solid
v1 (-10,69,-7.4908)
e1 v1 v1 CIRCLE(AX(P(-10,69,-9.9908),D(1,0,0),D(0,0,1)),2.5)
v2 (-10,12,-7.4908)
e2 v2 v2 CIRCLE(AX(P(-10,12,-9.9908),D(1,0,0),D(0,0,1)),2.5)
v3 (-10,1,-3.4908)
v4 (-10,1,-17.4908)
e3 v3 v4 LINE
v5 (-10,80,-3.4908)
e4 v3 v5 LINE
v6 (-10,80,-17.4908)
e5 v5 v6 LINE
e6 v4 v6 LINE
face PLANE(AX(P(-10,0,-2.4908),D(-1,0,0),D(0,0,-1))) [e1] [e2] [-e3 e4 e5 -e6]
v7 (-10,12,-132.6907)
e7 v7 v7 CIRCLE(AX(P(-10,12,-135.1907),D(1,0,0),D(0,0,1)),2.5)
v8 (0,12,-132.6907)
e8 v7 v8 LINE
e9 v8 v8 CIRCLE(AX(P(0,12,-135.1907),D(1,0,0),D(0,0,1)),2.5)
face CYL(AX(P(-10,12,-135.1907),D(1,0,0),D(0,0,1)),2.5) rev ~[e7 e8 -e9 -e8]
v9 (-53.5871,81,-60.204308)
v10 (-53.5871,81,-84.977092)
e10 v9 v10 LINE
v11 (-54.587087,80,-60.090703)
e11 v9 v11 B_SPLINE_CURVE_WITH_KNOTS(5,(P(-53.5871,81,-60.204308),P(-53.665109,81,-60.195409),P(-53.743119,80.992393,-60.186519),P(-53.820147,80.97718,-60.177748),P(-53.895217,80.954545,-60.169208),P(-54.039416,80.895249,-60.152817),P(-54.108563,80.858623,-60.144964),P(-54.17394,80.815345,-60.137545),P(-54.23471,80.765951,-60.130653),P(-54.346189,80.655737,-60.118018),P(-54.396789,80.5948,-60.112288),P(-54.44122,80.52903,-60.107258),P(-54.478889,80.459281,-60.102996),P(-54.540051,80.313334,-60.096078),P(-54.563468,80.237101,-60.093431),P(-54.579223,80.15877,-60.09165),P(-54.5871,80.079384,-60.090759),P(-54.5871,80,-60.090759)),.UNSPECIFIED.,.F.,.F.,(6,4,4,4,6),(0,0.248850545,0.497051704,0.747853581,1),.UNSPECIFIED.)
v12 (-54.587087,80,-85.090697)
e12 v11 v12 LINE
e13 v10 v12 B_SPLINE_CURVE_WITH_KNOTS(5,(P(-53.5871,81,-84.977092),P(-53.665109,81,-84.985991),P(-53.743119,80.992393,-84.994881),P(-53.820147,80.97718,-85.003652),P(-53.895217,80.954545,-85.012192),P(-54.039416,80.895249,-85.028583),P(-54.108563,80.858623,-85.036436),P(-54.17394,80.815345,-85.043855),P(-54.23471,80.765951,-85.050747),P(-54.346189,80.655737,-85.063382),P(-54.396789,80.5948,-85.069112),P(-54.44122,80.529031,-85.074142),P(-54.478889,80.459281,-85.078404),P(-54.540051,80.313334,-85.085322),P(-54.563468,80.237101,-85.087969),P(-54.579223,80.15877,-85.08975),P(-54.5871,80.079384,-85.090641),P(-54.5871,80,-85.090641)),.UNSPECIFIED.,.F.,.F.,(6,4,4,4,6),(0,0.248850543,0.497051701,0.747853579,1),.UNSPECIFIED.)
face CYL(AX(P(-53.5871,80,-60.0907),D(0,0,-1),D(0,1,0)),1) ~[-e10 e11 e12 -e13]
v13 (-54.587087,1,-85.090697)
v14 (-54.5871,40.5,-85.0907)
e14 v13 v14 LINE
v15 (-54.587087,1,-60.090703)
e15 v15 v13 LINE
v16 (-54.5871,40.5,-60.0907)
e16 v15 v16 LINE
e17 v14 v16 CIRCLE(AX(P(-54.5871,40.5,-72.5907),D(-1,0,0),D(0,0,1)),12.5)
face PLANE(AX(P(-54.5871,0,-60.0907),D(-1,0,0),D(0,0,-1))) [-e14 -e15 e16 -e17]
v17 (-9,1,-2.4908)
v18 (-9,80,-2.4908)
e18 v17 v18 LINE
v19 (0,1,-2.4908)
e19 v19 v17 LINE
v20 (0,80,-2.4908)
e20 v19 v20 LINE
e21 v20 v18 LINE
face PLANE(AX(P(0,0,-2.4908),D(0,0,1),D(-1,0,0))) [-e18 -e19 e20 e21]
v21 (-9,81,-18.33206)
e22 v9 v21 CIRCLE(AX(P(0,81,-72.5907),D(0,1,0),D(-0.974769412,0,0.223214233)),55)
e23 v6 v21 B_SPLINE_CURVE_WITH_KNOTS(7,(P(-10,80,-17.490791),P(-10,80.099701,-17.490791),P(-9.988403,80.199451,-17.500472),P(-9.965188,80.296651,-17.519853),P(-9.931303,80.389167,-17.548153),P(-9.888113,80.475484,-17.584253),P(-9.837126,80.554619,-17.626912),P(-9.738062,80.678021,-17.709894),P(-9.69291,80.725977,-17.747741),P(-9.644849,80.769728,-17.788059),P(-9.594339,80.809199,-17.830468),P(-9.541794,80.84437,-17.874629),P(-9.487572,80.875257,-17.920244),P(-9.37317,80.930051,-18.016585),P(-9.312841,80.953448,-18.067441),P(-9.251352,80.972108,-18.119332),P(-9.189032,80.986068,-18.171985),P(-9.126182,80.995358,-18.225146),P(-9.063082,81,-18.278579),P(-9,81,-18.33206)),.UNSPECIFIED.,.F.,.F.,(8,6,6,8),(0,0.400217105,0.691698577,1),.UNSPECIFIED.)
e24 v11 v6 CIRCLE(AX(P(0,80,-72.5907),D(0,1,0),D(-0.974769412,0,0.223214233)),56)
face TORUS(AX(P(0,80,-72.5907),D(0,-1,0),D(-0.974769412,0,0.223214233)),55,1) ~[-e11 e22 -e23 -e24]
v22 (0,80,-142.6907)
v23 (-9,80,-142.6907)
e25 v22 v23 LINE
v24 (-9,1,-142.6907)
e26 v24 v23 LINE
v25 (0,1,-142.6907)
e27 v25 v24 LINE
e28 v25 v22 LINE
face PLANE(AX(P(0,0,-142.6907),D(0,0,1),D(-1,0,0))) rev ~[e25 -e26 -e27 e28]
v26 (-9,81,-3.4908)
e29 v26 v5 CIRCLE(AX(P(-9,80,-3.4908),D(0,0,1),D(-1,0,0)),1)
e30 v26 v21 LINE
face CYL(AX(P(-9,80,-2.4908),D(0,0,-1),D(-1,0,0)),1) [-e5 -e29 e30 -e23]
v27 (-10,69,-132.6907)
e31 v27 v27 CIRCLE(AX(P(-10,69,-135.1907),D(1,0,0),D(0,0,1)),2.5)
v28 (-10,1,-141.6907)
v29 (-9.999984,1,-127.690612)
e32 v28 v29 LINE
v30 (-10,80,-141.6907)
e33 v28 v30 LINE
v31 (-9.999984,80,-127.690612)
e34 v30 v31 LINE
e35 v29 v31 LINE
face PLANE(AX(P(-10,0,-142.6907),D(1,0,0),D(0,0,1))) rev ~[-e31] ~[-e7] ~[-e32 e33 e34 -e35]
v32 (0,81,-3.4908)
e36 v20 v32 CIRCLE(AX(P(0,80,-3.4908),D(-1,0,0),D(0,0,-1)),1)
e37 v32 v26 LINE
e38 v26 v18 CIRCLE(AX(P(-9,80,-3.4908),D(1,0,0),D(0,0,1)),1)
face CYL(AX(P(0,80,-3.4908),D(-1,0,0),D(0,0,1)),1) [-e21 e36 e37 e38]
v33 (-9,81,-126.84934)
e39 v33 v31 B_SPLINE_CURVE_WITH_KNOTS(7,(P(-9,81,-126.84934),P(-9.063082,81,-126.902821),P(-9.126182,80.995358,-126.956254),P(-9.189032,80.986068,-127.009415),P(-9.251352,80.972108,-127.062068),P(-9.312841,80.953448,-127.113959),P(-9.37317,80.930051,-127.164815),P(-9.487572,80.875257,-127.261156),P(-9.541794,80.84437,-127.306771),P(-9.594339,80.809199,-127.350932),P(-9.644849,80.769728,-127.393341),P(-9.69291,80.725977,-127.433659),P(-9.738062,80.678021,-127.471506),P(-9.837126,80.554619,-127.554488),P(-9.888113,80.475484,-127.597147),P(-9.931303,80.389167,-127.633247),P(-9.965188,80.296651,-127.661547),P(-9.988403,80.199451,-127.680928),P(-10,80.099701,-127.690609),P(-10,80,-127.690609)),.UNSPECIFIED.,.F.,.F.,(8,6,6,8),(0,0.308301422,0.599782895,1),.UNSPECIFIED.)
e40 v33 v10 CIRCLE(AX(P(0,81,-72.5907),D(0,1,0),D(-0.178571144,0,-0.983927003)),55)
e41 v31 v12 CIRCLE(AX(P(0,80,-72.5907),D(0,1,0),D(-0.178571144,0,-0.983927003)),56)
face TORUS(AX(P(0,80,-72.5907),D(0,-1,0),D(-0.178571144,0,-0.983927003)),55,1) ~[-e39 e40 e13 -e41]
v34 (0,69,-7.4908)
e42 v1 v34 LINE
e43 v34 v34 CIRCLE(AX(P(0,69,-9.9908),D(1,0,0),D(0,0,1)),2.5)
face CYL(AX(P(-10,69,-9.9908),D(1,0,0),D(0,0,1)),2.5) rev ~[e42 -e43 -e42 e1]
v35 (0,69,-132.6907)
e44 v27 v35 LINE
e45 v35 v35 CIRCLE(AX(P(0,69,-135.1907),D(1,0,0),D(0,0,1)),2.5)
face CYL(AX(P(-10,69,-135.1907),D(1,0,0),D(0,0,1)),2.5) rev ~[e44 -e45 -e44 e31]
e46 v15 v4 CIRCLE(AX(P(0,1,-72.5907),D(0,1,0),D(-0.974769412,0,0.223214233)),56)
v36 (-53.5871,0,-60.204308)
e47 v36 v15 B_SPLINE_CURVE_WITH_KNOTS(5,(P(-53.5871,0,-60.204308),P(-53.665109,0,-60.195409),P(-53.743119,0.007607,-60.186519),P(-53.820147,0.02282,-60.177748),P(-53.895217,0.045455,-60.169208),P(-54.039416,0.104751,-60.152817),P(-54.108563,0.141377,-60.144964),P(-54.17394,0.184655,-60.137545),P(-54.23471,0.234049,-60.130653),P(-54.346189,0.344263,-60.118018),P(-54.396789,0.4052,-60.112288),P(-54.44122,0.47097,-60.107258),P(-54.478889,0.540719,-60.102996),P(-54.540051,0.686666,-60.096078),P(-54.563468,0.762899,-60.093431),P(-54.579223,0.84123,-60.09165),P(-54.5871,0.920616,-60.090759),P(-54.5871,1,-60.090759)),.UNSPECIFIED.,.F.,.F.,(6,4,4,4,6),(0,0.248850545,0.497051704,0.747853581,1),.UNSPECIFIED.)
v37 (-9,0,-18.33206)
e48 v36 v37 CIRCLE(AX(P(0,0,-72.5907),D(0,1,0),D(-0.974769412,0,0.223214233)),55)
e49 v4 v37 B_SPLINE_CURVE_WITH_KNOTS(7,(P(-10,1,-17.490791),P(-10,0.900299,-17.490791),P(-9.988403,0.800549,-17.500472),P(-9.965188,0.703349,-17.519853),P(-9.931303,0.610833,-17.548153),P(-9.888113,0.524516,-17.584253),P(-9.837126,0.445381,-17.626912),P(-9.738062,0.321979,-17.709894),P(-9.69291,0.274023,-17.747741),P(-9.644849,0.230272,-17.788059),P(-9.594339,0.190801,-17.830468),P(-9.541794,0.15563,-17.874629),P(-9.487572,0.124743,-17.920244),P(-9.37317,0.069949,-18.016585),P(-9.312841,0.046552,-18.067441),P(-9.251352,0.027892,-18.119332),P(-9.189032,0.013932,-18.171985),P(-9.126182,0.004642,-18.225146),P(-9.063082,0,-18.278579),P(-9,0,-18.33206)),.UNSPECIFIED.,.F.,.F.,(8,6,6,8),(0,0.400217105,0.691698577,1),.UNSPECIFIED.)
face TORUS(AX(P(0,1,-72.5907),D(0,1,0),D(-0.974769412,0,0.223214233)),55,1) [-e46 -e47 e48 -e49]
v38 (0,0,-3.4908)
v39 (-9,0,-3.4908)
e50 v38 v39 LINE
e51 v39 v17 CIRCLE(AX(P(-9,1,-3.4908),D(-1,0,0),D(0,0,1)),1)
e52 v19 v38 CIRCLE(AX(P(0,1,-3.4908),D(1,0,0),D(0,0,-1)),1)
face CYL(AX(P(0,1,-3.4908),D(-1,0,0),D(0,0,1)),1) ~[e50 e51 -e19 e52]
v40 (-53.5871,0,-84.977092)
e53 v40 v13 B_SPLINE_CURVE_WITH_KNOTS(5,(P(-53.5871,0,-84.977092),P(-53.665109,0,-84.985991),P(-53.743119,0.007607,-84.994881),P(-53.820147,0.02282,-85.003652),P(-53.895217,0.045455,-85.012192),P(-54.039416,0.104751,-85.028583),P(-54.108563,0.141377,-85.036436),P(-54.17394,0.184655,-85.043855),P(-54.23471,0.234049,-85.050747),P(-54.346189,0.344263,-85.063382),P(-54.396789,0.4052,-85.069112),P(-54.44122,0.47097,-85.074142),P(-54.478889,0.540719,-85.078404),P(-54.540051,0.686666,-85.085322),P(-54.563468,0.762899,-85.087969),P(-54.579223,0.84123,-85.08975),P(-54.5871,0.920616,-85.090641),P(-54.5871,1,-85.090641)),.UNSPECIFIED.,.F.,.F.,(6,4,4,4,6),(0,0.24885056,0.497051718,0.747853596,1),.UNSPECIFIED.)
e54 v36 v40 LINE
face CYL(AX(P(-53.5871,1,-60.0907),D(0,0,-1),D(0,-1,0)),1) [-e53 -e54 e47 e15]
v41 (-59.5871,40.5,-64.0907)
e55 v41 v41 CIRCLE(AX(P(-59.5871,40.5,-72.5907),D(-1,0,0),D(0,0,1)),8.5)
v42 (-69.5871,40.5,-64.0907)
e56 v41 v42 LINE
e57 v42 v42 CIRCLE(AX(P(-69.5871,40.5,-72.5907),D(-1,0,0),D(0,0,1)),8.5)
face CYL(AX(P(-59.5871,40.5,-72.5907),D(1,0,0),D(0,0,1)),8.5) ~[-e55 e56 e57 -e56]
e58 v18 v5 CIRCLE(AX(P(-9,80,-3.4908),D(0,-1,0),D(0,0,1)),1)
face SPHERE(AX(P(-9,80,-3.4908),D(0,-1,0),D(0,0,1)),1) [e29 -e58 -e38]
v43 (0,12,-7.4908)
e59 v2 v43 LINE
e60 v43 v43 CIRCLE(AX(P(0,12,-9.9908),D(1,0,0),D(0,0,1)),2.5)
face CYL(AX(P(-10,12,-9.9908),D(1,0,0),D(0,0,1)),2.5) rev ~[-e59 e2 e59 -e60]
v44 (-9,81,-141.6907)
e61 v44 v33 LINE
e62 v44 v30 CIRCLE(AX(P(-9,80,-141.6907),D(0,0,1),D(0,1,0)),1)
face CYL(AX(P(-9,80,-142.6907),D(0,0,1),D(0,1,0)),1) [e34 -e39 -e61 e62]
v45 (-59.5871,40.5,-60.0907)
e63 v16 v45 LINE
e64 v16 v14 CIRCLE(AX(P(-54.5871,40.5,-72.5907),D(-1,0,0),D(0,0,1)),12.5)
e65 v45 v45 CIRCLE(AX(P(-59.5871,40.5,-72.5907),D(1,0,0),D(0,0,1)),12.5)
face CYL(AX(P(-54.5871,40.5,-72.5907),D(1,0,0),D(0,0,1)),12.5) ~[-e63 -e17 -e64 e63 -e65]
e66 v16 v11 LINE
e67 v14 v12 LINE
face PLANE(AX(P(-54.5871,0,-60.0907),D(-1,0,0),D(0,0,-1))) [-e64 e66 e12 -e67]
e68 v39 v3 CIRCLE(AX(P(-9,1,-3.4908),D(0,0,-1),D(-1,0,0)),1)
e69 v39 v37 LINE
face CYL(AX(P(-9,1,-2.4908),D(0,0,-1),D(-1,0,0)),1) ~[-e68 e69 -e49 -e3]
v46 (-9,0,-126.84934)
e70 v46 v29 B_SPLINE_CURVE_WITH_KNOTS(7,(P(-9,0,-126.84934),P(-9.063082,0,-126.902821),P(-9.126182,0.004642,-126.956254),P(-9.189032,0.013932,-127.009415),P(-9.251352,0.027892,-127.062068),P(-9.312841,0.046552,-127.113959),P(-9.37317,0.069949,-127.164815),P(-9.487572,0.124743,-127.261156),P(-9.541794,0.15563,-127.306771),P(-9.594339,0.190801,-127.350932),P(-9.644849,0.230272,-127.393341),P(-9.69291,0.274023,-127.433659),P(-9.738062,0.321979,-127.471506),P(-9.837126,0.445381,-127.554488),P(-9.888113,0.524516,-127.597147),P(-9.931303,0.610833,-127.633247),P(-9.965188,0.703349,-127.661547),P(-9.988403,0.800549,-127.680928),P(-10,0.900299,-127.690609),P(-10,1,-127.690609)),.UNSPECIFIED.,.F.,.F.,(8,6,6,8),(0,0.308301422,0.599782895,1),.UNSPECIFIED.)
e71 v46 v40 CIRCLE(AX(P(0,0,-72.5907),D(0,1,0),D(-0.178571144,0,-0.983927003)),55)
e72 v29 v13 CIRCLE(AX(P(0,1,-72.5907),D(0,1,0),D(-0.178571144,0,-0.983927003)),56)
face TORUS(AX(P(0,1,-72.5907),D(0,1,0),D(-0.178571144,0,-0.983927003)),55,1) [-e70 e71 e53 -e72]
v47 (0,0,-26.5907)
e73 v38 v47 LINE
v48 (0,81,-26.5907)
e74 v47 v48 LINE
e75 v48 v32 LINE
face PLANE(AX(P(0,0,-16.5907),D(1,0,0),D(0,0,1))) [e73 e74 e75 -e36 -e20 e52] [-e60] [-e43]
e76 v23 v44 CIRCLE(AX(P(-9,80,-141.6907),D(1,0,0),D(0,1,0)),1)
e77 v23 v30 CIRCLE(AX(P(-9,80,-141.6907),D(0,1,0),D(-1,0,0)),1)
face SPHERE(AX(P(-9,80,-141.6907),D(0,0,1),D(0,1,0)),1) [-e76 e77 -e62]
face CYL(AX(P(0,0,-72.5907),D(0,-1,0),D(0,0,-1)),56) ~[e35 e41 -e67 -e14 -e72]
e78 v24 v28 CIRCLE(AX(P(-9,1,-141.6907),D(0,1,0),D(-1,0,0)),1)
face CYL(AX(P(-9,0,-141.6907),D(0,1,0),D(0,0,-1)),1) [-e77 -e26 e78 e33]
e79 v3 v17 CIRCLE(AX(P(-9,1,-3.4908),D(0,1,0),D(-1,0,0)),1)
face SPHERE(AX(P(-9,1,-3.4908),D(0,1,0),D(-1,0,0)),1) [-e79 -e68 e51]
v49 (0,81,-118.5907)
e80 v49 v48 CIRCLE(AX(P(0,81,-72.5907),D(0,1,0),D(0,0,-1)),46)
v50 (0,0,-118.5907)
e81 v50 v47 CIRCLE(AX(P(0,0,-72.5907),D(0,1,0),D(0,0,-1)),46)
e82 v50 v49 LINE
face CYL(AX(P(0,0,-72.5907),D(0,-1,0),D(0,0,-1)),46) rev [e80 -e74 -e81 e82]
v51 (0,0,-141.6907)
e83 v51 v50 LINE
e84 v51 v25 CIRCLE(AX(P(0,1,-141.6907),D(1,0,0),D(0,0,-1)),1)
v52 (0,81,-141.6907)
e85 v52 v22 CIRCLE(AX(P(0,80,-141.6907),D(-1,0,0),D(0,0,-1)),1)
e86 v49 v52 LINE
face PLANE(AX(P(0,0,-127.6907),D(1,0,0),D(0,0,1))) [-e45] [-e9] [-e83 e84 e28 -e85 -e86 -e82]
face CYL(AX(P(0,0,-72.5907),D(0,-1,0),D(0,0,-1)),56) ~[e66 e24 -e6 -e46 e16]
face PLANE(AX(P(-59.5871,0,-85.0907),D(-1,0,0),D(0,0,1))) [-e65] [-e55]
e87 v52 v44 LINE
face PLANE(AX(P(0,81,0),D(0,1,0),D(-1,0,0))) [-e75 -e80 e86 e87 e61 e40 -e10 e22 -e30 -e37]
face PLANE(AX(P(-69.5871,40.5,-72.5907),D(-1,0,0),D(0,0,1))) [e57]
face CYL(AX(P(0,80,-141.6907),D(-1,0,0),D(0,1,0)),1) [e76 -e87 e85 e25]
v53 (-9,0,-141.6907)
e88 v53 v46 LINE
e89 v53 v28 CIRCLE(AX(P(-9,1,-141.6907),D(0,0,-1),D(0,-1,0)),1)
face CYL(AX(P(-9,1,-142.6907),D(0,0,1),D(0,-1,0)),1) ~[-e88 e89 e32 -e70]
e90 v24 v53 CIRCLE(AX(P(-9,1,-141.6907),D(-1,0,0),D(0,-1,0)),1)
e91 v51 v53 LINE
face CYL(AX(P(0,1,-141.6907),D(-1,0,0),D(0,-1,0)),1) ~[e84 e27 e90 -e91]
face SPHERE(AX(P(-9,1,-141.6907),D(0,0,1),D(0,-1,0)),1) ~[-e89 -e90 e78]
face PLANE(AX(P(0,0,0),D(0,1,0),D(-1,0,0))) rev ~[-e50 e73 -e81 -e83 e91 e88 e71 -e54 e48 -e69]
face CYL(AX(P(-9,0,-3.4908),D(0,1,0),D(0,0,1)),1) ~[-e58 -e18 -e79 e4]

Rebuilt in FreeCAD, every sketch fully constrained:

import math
import FreeCAD as App
import Part
import Sketcher

V = App.Vector


def edges_at(feature, points):
    """Names of the edges that pass closest to the given points."""
    edges = feature.Shape.Edges
    near = lambda p: min(range(len(edges)), key=lambda i: edges[i].distToShape(Part.Vertex(*p))[0])
    return sorted({f"Edge{near(p) + 1}" for p in points})

doc = App.newDocument("Part")
body = doc.addObject("PartDesign::Body", "Body")

sketch1 = body.newObject("Sketcher::SketchObject", "Sketch")
sketch1.AttachmentSupport = (doc.getObject("XZ_Plane"), [""])
sketch1.MapMode = "FlatFace"
sketch1.addGeometry(Part.LineSegment(V(-10, -2.4908, 0), V(0, -2.4908, 0)), False)
sketch1.addGeometry(Part.LineSegment(V(0, -2.4908, 0), V(0, -26.5907, 0)), False)
sketch1.addGeometry(Part.ArcOfCircle(Part.Circle(V(0, -72.5907, 0), V(0, 0, 1), 46), math.radians(90), math.radians(270)), False)
sketch1.addGeometry(Part.LineSegment(V(0, -118.5907, 0), V(0, -142.6907, 0)), False)
sketch1.addGeometry(Part.LineSegment(V(0, -142.6907, 0), V(-10, -142.6907, 0)), False)
sketch1.addGeometry(Part.LineSegment(V(-10, -142.6907, 0), V(-10, -127.6907, 0)), False)
sketch1.addGeometry(Part.ArcOfCircle(Part.Circle(V(0, -72.5907, 0), V(0, 0, 1), 56), math.radians(-167.102109), math.radians(-100.286544)), False)
sketch1.addGeometry(Part.LineSegment(V(-54.5871, -85.0907, 0), V(-54.5871, -60.0907, 0)), False)
sketch1.addGeometry(Part.ArcOfCircle(Part.Circle(V(0, -72.5907, 0), V(0, 0, 1), 56), math.radians(100.286562), math.radians(167.102109)), False)
sketch1.addGeometry(Part.LineSegment(V(-10, -17.4908, 0), V(-10, -2.4908, 0)), False)
sketch1.addConstraint(Sketcher.Constraint("Coincident", 0, 2, 1, 1))
sketch1.addConstraint(Sketcher.Constraint("Coincident", 1, 2, 2, 1))
sketch1.addConstraint(Sketcher.Constraint("Coincident", 2, 2, 3, 1))
sketch1.addConstraint(Sketcher.Constraint("Coincident", 3, 2, 4, 1))
sketch1.addConstraint(Sketcher.Constraint("Coincident", 4, 2, 5, 1))
sketch1.addConstraint(Sketcher.Constraint("Coincident", 5, 2, 6, 2))
sketch1.addConstraint(Sketcher.Constraint("Coincident", 6, 1, 7, 1))
sketch1.addConstraint(Sketcher.Constraint("Coincident", 7, 2, 8, 2))
sketch1.addConstraint(Sketcher.Constraint("Coincident", 8, 1, 9, 1))
sketch1.addConstraint(Sketcher.Constraint("Coincident", 9, 2, 0, 1))
sketch1.addConstraint(Sketcher.Constraint("Horizontal", 0))
sketch1.addConstraint(Sketcher.Constraint("Vertical", 1))
sketch1.addConstraint(Sketcher.Constraint("Vertical", 3))
sketch1.addConstraint(Sketcher.Constraint("Horizontal", 4))
sketch1.addConstraint(Sketcher.Constraint("Vertical", 5))
sketch1.addConstraint(Sketcher.Constraint("Vertical", 7))
sketch1.addConstraint(Sketcher.Constraint("Vertical", 9))
sketch1.addConstraint(Sketcher.Constraint("Coincident", 6, 3, 2, 3))
sketch1.addConstraint(Sketcher.Constraint("Coincident", 8, 3, 2, 3))
sketch1.addConstraint(Sketcher.Constraint("Equal", 6, 8))
sketch1.addConstraint(Sketcher.Constraint("PointOnObject", 2, 3, -2))
sketch1.addConstraint(Sketcher.Constraint("PointOnObject", 0, 2, -2))
sketch1.addConstraint(Sketcher.Constraint("PointOnObject", 2, 2, -2))
sketch1.addConstraint(Sketcher.Constraint("Vertical", 5, 2, 8, 1))
sketch1.addConstraint(Sketcher.Constraint("Equal", 1, 3))
sketch1.addConstraint(Sketcher.Constraint("Radius", 2, 46.0))
sketch1.addConstraint(Sketcher.Constraint("Radius", 6, 56.0))
sketch1.addConstraint(Sketcher.Constraint("DistanceX", 0, 1, 0, 2, 10.0))
sketch1.addConstraint(Sketcher.Constraint("DistanceY", 5, 1, 5, 2, 15.0))
sketch1.addConstraint(Sketcher.Constraint("DistanceY", 7, 1, 7, 2, 25.0))
sketch1.addConstraint(Sketcher.Constraint("DistanceY", 2, 3, -1, 1, 72.5907))
pad1 = body.newObject("PartDesign::Pad", "Pad")
pad1.Profile = sketch1
pad1.Length = 81
pad1.Reversed = True

sketch2 = body.newObject("Sketcher::SketchObject", "Sketch001")
sketch2.AttachmentSupport = (doc.getObject("YZ_Plane"), [""])
sketch2.MapMode = "FlatFace"
sketch2.AttachmentOffset = App.Placement(V(0, 0, -54.5871), App.Rotation())
sketch2.addGeometry(Part.Circle(V(40.5, -72.5907, 0), V(0, 0, 1), 12.5), False)
sketch2.addConstraint(Sketcher.Constraint("Diameter", 0, 25.0))
sketch2.addConstraint(Sketcher.Constraint("DistanceX", -1, 1, 0, 3, 40.5))
sketch2.addConstraint(Sketcher.Constraint("DistanceY", 0, 3, -1, 1, 72.5907))
pad2 = body.newObject("PartDesign::Pad", "Pad001")
pad2.Profile = sketch2
pad2.Length = 5
pad2.Reversed = True

sketch3 = body.newObject("Sketcher::SketchObject", "Sketch002")
sketch3.AttachmentSupport = (doc.getObject("YZ_Plane"), [""])
sketch3.MapMode = "FlatFace"
sketch3.AttachmentOffset = App.Placement(V(0, 0, -10), App.Rotation())
sketch3.addGeometry(Part.Circle(V(69, -135.1907, 0), V(0, 0, 1), 2.5), False)
sketch3.addGeometry(Part.Circle(V(12, -135.1907, 0), V(0, 0, 1), 2.5), False)
sketch3.addGeometry(Part.Circle(V(12, -9.9908, 0), V(0, 0, 1), 2.5), False)
sketch3.addGeometry(Part.Circle(V(69, -9.9908, 0), V(0, 0, 1), 2.5), False)
sketch3.addConstraint(Sketcher.Constraint("Equal", 0, 1))
sketch3.addConstraint(Sketcher.Constraint("Equal", 1, 2))
sketch3.addConstraint(Sketcher.Constraint("Equal", 2, 3))
sketch3.addConstraint(Sketcher.Constraint("Horizontal", 0, 3, 1, 3))
sketch3.addConstraint(Sketcher.Constraint("Horizontal", 2, 3, 3, 3))
sketch3.addConstraint(Sketcher.Constraint("Vertical", 1, 3, 2, 3))
sketch3.addConstraint(Sketcher.Constraint("Vertical", 0, 3, 3, 3))
sketch3.addConstraint(Sketcher.Constraint("Diameter", 0, 5.0))
sketch3.addConstraint(Sketcher.Constraint("DistanceX", -1, 1, 0, 3, 69.0))
sketch3.addConstraint(Sketcher.Constraint("DistanceX", -1, 1, 1, 3, 12.0))
sketch3.addConstraint(Sketcher.Constraint("DistanceY", 1, 3, 2, 3, 125.2))
sketch3.addConstraint(Sketcher.Constraint("DistanceY", 0, 3, -1, 1, 135.1907))
doc.recompute()
hole = body.newObject("PartDesign::Hole", "Hole")
hole.Profile = sketch3
hole.ThreadType = "None"
hole.Diameter = 5
hole.DepthType = "ThroughAll"
hole.Reversed = True
doc.recompute()

fillet = body.newObject("PartDesign::Fillet", "Fillet")
fillet.Base = (hole, edges_at(hole, [
    (-10, 40.5, -2.491),
    (-5, 81, -2.491),
    (-10, 81, -9.991),
    (-38.685, 81, -32.101),
    (-38.685, 81, -113.081),
    (-10, 81, -135.191),
    (-5, 81, -142.691),
    (-10, 0, -9.991),
    (-38.685, 0, -32.101),
    (-5, 0, -2.491),
    (-38.685, 0, -113.081),
    (-54.587, 0, -72.591),
    (-10, 0, -135.191),
    (-5, 0, -142.691),
    (-10, 40.5, -142.691),
    (-54.587, 81, -72.591),
]))
fillet.Radius = 1

sketch4 = body.newObject("Sketcher::SketchObject", "Sketch003")
sketch4.AttachmentSupport = (doc.getObject("YZ_Plane"), [""])
sketch4.MapMode = "FlatFace"
sketch4.AttachmentOffset = App.Placement(V(0, 0, -59.5871), App.Rotation())
sketch4.addGeometry(Part.Circle(V(40.5, -72.5907, 0), V(0, 0, 1), 8.5), False)
sketch4.addConstraint(Sketcher.Constraint("Diameter", 0, 17.0))
sketch4.addConstraint(Sketcher.Constraint("DistanceX", -1, 1, 0, 3, 40.5))
sketch4.addConstraint(Sketcher.Constraint("DistanceY", 0, 3, -1, 1, 72.5907))
pad3 = body.newObject("PartDesign::Pad", "Pad002")
pad3.Profile = sketch4
pad3.Length = 10
pad3.Reversed = True

doc.recompute()
